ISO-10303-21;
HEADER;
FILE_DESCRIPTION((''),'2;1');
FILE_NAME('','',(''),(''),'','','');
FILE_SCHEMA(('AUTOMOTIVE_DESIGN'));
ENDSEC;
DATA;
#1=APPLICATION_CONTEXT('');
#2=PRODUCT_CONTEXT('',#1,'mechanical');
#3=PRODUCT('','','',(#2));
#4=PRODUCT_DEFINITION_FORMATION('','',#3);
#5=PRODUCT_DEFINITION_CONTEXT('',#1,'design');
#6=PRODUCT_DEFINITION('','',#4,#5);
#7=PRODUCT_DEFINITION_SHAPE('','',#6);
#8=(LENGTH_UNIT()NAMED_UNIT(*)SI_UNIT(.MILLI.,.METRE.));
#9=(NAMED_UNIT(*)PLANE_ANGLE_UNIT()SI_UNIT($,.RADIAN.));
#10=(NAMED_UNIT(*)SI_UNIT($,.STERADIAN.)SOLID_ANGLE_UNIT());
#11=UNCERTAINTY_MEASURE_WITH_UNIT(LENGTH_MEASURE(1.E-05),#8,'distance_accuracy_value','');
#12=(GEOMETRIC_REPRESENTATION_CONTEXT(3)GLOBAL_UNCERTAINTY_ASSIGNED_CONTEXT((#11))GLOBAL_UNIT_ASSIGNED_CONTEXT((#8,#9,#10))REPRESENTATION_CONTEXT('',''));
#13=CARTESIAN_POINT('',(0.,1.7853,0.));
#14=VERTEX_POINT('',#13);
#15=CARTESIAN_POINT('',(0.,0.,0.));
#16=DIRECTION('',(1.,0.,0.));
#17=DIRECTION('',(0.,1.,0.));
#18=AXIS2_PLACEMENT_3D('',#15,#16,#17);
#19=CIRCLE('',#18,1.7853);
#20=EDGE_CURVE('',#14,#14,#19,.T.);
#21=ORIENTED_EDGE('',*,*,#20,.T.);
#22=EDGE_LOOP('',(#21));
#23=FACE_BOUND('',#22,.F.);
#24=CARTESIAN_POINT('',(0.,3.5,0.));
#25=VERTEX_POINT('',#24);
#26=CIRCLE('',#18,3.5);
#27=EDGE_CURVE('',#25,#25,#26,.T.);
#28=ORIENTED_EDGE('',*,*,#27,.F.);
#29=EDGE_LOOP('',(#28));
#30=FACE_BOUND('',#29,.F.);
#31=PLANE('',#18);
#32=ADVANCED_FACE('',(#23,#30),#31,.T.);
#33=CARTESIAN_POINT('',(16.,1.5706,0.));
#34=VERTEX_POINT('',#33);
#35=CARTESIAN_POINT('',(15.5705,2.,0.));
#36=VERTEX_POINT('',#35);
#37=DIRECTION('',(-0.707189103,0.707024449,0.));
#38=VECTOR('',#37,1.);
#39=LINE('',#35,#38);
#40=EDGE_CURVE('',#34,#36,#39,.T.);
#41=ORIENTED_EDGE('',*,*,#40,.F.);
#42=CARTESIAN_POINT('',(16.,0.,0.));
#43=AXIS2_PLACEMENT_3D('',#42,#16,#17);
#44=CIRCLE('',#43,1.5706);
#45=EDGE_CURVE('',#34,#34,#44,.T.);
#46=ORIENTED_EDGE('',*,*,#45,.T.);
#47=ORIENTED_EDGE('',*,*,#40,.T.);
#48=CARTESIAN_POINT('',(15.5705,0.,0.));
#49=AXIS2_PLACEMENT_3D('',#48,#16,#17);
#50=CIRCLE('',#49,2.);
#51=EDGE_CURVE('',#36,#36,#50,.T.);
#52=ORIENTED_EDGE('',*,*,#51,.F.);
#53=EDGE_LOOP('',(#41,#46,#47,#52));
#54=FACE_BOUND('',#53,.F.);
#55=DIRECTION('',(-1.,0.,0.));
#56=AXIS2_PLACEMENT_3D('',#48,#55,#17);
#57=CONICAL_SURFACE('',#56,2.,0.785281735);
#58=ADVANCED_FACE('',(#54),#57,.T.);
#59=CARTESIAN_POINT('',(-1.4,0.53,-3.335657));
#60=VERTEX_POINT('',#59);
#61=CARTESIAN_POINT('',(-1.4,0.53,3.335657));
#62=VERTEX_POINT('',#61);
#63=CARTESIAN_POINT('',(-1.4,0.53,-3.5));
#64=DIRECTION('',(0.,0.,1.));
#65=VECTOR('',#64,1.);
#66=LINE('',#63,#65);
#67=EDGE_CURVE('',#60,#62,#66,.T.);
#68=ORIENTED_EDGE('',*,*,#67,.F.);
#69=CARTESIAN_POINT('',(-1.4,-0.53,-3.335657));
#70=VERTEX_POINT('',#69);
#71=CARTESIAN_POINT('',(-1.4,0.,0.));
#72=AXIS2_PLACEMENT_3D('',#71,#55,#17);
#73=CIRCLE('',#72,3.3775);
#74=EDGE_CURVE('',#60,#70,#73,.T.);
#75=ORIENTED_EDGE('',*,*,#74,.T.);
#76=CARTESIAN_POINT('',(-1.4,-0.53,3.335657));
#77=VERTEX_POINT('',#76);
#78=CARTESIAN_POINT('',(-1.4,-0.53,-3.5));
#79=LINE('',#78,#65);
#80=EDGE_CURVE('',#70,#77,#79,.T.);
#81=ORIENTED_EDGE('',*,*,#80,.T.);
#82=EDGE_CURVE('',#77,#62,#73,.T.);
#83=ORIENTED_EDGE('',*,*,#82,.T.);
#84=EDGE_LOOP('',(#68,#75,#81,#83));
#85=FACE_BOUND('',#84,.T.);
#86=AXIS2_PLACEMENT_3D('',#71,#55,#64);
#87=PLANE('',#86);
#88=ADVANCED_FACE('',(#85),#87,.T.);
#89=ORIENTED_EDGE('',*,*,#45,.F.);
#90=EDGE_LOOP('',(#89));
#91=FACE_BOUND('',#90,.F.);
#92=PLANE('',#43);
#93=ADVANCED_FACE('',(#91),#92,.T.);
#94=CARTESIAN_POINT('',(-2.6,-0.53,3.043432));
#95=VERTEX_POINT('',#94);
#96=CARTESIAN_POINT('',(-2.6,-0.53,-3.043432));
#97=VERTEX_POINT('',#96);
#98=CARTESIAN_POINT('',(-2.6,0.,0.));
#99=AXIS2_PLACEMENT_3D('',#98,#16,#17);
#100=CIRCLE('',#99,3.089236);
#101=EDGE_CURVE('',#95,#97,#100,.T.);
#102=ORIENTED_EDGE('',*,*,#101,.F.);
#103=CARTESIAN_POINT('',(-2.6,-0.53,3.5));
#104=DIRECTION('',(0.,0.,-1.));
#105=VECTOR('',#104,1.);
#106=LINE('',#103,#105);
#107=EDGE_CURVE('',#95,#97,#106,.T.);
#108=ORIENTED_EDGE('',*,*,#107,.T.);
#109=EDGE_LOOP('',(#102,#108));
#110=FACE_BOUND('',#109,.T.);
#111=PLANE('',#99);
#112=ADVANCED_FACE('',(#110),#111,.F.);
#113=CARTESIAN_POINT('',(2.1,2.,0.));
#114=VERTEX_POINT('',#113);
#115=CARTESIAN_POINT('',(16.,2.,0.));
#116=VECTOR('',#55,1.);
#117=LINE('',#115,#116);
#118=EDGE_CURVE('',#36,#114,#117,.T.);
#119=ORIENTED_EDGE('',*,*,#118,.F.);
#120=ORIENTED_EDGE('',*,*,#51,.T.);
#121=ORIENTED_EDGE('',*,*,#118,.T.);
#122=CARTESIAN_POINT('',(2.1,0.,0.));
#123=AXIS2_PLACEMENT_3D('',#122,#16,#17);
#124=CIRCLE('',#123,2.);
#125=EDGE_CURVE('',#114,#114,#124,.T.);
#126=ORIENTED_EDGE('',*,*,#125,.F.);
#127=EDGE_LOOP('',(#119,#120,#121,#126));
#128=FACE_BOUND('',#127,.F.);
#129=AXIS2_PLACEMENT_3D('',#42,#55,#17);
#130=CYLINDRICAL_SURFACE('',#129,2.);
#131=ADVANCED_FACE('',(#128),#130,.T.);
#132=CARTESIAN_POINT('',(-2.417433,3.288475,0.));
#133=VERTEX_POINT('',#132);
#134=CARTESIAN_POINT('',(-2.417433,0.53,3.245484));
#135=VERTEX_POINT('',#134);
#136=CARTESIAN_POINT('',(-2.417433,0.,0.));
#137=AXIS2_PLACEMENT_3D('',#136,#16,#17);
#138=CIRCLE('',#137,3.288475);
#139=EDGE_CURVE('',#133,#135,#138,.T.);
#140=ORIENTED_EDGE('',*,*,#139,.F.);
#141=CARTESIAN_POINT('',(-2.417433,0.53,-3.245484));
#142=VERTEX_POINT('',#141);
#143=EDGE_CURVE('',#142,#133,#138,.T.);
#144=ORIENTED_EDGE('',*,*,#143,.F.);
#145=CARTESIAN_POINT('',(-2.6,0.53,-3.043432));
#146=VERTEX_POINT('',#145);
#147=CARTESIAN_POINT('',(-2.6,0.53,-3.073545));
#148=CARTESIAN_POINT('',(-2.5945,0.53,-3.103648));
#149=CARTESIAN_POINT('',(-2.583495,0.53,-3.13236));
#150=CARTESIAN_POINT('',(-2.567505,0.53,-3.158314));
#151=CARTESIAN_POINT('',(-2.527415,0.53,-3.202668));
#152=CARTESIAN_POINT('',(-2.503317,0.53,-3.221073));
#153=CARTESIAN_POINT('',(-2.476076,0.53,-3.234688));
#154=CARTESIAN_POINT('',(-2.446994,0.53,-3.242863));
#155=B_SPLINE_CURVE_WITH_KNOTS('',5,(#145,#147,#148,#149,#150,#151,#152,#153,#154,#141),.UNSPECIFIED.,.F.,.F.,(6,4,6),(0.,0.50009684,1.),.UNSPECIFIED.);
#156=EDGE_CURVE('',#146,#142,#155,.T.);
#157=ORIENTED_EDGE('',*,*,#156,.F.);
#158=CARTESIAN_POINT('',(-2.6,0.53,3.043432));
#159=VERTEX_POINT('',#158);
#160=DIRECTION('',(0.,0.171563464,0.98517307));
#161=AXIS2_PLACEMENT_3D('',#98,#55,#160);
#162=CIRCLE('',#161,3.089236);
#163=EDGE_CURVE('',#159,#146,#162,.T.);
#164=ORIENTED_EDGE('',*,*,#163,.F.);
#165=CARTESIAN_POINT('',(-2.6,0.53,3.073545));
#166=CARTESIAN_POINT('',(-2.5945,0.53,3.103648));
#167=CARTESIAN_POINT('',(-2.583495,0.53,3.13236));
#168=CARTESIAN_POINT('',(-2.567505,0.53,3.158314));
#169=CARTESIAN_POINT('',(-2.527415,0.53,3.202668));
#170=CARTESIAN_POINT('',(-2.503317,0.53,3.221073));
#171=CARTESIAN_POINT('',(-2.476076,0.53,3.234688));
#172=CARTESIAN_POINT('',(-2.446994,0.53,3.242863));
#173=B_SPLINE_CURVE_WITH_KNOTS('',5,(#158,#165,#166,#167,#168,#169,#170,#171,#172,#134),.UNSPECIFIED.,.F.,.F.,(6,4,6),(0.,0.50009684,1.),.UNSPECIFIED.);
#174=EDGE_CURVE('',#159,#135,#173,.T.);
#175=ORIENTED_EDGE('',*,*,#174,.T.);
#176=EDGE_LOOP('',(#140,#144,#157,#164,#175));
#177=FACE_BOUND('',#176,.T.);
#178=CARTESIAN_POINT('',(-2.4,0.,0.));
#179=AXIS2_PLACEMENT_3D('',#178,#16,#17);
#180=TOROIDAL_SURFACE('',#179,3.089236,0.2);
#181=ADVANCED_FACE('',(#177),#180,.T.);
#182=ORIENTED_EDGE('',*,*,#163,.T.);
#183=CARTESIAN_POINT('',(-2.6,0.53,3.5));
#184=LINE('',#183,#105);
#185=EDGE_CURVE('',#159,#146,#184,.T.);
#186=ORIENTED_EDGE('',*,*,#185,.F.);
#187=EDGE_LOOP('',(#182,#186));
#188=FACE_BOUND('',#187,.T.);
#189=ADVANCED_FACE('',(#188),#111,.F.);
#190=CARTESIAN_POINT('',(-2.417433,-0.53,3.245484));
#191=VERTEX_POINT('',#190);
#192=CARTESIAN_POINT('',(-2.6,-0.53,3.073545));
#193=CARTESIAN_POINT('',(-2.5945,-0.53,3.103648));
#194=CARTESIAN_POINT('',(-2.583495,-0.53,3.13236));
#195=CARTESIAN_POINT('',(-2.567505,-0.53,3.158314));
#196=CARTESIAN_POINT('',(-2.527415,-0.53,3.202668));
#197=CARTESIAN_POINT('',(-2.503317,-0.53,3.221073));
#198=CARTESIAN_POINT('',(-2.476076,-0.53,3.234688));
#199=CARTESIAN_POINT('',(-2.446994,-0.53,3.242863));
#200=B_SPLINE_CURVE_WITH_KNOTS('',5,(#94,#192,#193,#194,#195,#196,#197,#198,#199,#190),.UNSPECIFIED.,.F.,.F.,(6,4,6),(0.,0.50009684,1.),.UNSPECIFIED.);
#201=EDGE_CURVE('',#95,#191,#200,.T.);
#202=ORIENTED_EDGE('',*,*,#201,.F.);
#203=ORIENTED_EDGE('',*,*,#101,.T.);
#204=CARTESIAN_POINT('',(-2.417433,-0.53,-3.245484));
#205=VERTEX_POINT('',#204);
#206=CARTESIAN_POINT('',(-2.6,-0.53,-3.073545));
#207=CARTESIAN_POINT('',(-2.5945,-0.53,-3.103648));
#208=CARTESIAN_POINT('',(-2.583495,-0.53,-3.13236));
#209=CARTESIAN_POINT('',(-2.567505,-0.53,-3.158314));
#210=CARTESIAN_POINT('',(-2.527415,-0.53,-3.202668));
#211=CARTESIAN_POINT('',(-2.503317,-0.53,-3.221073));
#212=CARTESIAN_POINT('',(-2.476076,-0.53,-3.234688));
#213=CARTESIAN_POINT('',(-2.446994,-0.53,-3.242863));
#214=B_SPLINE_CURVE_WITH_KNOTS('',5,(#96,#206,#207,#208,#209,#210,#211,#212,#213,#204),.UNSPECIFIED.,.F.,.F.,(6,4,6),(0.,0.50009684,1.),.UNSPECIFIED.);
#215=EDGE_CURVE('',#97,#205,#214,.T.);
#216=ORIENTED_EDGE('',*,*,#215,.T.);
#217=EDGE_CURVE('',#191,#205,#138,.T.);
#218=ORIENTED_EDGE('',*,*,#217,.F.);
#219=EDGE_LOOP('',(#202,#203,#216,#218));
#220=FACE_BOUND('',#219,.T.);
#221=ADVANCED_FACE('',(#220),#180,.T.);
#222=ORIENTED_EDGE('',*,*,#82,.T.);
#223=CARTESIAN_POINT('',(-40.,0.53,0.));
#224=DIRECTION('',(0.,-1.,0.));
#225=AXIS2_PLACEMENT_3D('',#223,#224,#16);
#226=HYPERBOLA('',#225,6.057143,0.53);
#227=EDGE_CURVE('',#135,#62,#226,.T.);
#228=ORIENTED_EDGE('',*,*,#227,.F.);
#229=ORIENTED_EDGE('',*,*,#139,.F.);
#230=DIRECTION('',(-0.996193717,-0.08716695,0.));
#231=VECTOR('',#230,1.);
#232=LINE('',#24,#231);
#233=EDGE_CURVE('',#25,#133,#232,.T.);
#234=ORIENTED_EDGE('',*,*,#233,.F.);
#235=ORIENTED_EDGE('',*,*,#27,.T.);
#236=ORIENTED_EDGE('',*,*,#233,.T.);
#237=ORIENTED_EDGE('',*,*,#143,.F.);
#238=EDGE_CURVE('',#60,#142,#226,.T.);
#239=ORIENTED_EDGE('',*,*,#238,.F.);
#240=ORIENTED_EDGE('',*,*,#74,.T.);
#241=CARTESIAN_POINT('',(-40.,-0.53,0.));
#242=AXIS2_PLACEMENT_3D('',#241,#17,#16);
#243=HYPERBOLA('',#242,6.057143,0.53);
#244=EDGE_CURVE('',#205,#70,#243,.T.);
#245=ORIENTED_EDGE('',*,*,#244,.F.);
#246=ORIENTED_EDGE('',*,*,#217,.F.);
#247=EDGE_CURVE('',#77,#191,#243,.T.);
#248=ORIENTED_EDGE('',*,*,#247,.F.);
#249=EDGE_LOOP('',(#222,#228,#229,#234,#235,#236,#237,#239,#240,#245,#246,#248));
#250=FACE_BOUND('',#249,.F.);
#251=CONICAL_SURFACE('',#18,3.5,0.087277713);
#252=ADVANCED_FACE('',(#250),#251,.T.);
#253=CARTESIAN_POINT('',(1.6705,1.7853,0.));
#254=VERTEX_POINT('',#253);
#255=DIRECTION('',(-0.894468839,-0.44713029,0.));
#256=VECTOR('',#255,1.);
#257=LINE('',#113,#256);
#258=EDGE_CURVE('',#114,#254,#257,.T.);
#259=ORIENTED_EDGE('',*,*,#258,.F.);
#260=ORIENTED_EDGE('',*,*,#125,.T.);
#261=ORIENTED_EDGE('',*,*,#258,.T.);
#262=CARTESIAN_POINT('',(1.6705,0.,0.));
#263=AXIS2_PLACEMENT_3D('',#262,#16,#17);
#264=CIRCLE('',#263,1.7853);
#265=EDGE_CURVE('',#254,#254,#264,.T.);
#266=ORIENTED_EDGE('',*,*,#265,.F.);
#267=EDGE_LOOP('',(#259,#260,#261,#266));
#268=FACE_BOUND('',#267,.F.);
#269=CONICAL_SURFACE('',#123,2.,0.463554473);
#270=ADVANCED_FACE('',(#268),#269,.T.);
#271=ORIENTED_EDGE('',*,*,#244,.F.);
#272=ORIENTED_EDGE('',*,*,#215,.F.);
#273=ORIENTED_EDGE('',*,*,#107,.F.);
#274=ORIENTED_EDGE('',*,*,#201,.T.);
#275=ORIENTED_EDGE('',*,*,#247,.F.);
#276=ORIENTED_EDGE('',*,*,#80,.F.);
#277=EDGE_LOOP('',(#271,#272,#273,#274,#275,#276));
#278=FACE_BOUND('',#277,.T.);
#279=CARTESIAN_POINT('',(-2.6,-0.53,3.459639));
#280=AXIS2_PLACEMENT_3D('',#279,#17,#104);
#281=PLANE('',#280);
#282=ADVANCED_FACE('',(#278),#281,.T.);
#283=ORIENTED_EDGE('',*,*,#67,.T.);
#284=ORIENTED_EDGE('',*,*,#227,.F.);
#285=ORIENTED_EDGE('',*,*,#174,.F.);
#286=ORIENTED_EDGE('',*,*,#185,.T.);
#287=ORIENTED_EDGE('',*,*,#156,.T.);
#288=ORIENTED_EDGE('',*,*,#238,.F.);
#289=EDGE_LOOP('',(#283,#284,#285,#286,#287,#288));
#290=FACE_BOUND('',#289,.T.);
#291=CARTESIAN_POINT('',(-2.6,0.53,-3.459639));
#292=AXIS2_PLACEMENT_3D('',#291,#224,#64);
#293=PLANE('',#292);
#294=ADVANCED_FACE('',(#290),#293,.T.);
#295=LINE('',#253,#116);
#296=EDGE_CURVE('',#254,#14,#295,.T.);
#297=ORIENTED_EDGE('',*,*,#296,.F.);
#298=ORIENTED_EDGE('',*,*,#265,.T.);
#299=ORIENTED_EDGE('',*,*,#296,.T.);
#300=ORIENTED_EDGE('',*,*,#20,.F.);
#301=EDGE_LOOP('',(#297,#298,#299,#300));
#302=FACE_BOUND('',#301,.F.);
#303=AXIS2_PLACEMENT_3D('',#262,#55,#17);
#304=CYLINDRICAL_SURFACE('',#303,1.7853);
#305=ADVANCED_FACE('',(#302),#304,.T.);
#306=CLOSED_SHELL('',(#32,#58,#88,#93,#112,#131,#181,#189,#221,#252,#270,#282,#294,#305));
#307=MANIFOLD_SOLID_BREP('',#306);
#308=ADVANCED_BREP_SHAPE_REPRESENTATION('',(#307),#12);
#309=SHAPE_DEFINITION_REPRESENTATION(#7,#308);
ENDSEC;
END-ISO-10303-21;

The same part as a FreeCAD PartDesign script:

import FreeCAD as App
import Part
import Sketcher
from FreeCAD import Vector
Q = App.Units.Quantity


def edges_at(feature, points):
    """Names of the edges that pass closest to the given points."""
    edges = feature.Shape.Edges
    near = lambda p: min(range(len(edges)), key=lambda i: edges[i].distToShape(Part.Vertex(*p))[0])
    return sorted({f"Edge{near(p) + 1}" for p in points})

doc = App.newDocument("Part")
params = doc.addObject("Spreadsheet::Sheet", "Params")
for row, (alias, value) in enumerate([
    ("sketch1_width", "13.9 mm"),
    ("sketch1_height", "2 mm"),
    ("revolution_angle", "360 deg"),
    ("fillet_radius", "0.2 mm"),
    ("sketch2_height", "7 mm"),
    ("sketch2_width", "1.06 mm"),
    ("pocket1_length", "1.2 mm"),
    ("chamfer_size", "0.4294 mm"),
    ("chamfer_size2", "0.4295 mm"),
], start=1):
    params.set(f"A{row}", alias)
    params.set(f"B{row}", "=" + value)
    params.setAlias(f"B{row}", alias)

body = doc.addObject("PartDesign::Body", "Body")

# Sketch on XY plane
sketch1 = body.newObject("Sketcher::SketchObject", "Sketch")
sketch1.AttachmentSupport = (doc.getObject("XY_Plane"), [""])
sketch1.MapMode = "FlatFace"
sketch1.addGeometry(Part.LineSegment(Vector(-2.6, 3.27, 0), Vector(-2.6, 0, 0)), False)
sketch1.addGeometry(Part.LineSegment(Vector(-2.6, 0, 0), Vector(16, 0, 0)), False)
sketch1.addGeometry(Part.LineSegment(Vector(16, 0, 0), Vector(16, 2, 0)), False)
sketch1.addGeometry(Part.LineSegment(Vector(16, 2, 0), Vector(2.1, 2, 0)), False)
sketch1.addGeometry(Part.LineSegment(Vector(2.1, 2, 0), Vector(1.67, 1.79, 0)), False)
sketch1.addGeometry(Part.LineSegment(Vector(1.67, 1.79, 0), Vector(0, 1.79, 0)), False)
sketch1.addGeometry(Part.LineSegment(Vector(0, 1.79, 0), Vector(0, 3.5, 0)), False)
sketch1.addGeometry(Part.LineSegment(Vector(0, 3.5, 0), Vector(-2.6, 3.27, 0)), False)
sketch1.addConstraint(Sketcher.Constraint("Coincident", 0, 2, 1, 1))
sketch1.addConstraint(Sketcher.Constraint("Coincident", 1, 2, 2, 1))
sketch1.addConstraint(Sketcher.Constraint("Coincident", 2, 2, 3, 1))
sketch1.addConstraint(Sketcher.Constraint("Coincident", 3, 2, 4, 1))
sketch1.addConstraint(Sketcher.Constraint("Coincident", 4, 2, 5, 1))
sketch1.addConstraint(Sketcher.Constraint("Coincident", 5, 2, 6, 1))
sketch1.addConstraint(Sketcher.Constraint("Coincident", 6, 2, 7, 1))
sketch1.addConstraint(Sketcher.Constraint("Coincident", 7, 2, 0, 1))
sketch1.addConstraint(Sketcher.Constraint("Vertical", 0))
sketch1.addConstraint(Sketcher.Constraint("Horizontal", 1))
sketch1.addConstraint(Sketcher.Constraint("Vertical", 2))
sketch1.addConstraint(Sketcher.Constraint("Horizontal", 3))
sketch1.addConstraint(Sketcher.Constraint("Horizontal", 5))
sketch1.addConstraint(Sketcher.Constraint("Vertical", 6))
sketch1.addConstraint(Sketcher.Constraint("PointOnObject", 0, 2, -1))
sketch1.addConstraint(Sketcher.Constraint("PointOnObject", 5, 2, -2))
sketch1.addConstraint(Sketcher.Constraint("DistanceX", 3, 2, 3, 1, Q("13.9 mm")))
sketch1.addConstraint(Sketcher.Constraint("DistanceX", -1, 1, 1, 2, Q("16 mm")))
sketch1.addConstraint(Sketcher.Constraint("DistanceX", 0, 2, -1, 1, Q("2.6 mm")))
sketch1.addConstraint(Sketcher.Constraint("DistanceY", 2, 1, 2, 2, Q("2 mm")))
sketch1.addConstraint(Sketcher.Constraint("Angle", 7, Q("-174.9994 deg")))
sketch1.addConstraint(Sketcher.Constraint("DistanceY", -1, 1, 6, 2, Q("3.5 mm")))
sketch1.addConstraint(Sketcher.Constraint("Angle", 4, Q("-153.4403 deg")))
sketch1.addConstraint(Sketcher.Constraint("DistanceX", 4, 2, 3, 2, Q("0.4295 mm")))
sketch1.setExpression("Constraints[16]", "Params.sketch1_width")
sketch1.setExpression("Constraints[19]", "Params.sketch1_height")
revolution = body.newObject("PartDesign::Revolution", "Revolution")
revolution.Profile = sketch1
revolution.ReferenceAxis = (sketch1, ["H_Axis"])
revolution.setExpression("Angle", "Params.revolution_angle")
doc.recompute()

fillet = body.newObject("PartDesign::Fillet", "Fillet")
fillet.Base = (revolution, edges_at(revolution, [(-2.6, -3.272, 0)]))
fillet.setExpression("Radius", "Params.fillet_radius")

# Sketch on YZ plane
sketch2 = body.newObject("Sketcher::SketchObject", "Sketch001")
sketch2.AttachmentSupport = (doc.getObject("YZ_Plane"), [""])
sketch2.MapMode = "FlatFace"
sketch2.AttachmentOffset = App.Placement(Vector(0, 0, -2.6), App.Rotation())
sketch2.addGeometry(Part.LineSegment(Vector(-0.5, 3.5, 0), Vector(0.5, 3.5, 0)), False)
sketch2.addGeometry(Part.LineSegment(Vector(0.5, 3.5, 0), Vector(0.5, -3.5, 0)), False)
sketch2.addGeometry(Part.LineSegment(Vector(0.5, -3.5, 0), Vector(-0.5, -3.5, 0)), False)
sketch2.addGeometry(Part.LineSegment(Vector(-0.5, -3.5, 0), Vector(-0.5, 3.5, 0)), False)
sketch2.addConstraint(Sketcher.Constraint("Coincident", 0, 2, 1, 1))
sketch2.addConstraint(Sketcher.Constraint("Coincident", 1, 2, 2, 1))
sketch2.addConstraint(Sketcher.Constraint("Coincident", 2, 2, 3, 1))
sketch2.addConstraint(Sketcher.Constraint("Coincident", 3, 2, 0, 1))
sketch2.addConstraint(Sketcher.Constraint("Horizontal", 0))
sketch2.addConstraint(Sketcher.Constraint("Vertical", 1))
sketch2.addConstraint(Sketcher.Constraint("Horizontal", 2))
sketch2.addConstraint(Sketcher.Constraint("Vertical", 3))
sketch2.addConstraint(Sketcher.Constraint("Symmetric", 0, 2, 2, 2, -1, 1))
sketch2.addConstraint(Sketcher.Constraint("DistanceY", 1, 2, 1, 1, Q("7 mm")))
sketch2.addConstraint(Sketcher.Constraint("DistanceX", 0, 1, 0, 2, Q("1.06 mm")))
sketch2.setExpression("Constraints[9]", "Params.sketch2_height")
sketch2.setExpression("Constraints[10]", "Params.sketch2_width")
pocket1 = body.newObject("PartDesign::Pocket", "Pocket")
pocket1.Profile = sketch2
pocket1.setExpression("Length", "Params.pocket1_length")
pocket1.Reversed = True
doc.recompute()

chamfer = body.newObject("PartDesign::Chamfer", "Chamfer")
chamfer.Base = (pocket1, edges_at(pocket1, [(16, -2, 0)]))
chamfer.ChamferType = "Two distances"
chamfer.setExpression("Size", "Params.chamfer_size")
chamfer.setExpression("Size2", "Params.chamfer_size2")

doc.recompute()
